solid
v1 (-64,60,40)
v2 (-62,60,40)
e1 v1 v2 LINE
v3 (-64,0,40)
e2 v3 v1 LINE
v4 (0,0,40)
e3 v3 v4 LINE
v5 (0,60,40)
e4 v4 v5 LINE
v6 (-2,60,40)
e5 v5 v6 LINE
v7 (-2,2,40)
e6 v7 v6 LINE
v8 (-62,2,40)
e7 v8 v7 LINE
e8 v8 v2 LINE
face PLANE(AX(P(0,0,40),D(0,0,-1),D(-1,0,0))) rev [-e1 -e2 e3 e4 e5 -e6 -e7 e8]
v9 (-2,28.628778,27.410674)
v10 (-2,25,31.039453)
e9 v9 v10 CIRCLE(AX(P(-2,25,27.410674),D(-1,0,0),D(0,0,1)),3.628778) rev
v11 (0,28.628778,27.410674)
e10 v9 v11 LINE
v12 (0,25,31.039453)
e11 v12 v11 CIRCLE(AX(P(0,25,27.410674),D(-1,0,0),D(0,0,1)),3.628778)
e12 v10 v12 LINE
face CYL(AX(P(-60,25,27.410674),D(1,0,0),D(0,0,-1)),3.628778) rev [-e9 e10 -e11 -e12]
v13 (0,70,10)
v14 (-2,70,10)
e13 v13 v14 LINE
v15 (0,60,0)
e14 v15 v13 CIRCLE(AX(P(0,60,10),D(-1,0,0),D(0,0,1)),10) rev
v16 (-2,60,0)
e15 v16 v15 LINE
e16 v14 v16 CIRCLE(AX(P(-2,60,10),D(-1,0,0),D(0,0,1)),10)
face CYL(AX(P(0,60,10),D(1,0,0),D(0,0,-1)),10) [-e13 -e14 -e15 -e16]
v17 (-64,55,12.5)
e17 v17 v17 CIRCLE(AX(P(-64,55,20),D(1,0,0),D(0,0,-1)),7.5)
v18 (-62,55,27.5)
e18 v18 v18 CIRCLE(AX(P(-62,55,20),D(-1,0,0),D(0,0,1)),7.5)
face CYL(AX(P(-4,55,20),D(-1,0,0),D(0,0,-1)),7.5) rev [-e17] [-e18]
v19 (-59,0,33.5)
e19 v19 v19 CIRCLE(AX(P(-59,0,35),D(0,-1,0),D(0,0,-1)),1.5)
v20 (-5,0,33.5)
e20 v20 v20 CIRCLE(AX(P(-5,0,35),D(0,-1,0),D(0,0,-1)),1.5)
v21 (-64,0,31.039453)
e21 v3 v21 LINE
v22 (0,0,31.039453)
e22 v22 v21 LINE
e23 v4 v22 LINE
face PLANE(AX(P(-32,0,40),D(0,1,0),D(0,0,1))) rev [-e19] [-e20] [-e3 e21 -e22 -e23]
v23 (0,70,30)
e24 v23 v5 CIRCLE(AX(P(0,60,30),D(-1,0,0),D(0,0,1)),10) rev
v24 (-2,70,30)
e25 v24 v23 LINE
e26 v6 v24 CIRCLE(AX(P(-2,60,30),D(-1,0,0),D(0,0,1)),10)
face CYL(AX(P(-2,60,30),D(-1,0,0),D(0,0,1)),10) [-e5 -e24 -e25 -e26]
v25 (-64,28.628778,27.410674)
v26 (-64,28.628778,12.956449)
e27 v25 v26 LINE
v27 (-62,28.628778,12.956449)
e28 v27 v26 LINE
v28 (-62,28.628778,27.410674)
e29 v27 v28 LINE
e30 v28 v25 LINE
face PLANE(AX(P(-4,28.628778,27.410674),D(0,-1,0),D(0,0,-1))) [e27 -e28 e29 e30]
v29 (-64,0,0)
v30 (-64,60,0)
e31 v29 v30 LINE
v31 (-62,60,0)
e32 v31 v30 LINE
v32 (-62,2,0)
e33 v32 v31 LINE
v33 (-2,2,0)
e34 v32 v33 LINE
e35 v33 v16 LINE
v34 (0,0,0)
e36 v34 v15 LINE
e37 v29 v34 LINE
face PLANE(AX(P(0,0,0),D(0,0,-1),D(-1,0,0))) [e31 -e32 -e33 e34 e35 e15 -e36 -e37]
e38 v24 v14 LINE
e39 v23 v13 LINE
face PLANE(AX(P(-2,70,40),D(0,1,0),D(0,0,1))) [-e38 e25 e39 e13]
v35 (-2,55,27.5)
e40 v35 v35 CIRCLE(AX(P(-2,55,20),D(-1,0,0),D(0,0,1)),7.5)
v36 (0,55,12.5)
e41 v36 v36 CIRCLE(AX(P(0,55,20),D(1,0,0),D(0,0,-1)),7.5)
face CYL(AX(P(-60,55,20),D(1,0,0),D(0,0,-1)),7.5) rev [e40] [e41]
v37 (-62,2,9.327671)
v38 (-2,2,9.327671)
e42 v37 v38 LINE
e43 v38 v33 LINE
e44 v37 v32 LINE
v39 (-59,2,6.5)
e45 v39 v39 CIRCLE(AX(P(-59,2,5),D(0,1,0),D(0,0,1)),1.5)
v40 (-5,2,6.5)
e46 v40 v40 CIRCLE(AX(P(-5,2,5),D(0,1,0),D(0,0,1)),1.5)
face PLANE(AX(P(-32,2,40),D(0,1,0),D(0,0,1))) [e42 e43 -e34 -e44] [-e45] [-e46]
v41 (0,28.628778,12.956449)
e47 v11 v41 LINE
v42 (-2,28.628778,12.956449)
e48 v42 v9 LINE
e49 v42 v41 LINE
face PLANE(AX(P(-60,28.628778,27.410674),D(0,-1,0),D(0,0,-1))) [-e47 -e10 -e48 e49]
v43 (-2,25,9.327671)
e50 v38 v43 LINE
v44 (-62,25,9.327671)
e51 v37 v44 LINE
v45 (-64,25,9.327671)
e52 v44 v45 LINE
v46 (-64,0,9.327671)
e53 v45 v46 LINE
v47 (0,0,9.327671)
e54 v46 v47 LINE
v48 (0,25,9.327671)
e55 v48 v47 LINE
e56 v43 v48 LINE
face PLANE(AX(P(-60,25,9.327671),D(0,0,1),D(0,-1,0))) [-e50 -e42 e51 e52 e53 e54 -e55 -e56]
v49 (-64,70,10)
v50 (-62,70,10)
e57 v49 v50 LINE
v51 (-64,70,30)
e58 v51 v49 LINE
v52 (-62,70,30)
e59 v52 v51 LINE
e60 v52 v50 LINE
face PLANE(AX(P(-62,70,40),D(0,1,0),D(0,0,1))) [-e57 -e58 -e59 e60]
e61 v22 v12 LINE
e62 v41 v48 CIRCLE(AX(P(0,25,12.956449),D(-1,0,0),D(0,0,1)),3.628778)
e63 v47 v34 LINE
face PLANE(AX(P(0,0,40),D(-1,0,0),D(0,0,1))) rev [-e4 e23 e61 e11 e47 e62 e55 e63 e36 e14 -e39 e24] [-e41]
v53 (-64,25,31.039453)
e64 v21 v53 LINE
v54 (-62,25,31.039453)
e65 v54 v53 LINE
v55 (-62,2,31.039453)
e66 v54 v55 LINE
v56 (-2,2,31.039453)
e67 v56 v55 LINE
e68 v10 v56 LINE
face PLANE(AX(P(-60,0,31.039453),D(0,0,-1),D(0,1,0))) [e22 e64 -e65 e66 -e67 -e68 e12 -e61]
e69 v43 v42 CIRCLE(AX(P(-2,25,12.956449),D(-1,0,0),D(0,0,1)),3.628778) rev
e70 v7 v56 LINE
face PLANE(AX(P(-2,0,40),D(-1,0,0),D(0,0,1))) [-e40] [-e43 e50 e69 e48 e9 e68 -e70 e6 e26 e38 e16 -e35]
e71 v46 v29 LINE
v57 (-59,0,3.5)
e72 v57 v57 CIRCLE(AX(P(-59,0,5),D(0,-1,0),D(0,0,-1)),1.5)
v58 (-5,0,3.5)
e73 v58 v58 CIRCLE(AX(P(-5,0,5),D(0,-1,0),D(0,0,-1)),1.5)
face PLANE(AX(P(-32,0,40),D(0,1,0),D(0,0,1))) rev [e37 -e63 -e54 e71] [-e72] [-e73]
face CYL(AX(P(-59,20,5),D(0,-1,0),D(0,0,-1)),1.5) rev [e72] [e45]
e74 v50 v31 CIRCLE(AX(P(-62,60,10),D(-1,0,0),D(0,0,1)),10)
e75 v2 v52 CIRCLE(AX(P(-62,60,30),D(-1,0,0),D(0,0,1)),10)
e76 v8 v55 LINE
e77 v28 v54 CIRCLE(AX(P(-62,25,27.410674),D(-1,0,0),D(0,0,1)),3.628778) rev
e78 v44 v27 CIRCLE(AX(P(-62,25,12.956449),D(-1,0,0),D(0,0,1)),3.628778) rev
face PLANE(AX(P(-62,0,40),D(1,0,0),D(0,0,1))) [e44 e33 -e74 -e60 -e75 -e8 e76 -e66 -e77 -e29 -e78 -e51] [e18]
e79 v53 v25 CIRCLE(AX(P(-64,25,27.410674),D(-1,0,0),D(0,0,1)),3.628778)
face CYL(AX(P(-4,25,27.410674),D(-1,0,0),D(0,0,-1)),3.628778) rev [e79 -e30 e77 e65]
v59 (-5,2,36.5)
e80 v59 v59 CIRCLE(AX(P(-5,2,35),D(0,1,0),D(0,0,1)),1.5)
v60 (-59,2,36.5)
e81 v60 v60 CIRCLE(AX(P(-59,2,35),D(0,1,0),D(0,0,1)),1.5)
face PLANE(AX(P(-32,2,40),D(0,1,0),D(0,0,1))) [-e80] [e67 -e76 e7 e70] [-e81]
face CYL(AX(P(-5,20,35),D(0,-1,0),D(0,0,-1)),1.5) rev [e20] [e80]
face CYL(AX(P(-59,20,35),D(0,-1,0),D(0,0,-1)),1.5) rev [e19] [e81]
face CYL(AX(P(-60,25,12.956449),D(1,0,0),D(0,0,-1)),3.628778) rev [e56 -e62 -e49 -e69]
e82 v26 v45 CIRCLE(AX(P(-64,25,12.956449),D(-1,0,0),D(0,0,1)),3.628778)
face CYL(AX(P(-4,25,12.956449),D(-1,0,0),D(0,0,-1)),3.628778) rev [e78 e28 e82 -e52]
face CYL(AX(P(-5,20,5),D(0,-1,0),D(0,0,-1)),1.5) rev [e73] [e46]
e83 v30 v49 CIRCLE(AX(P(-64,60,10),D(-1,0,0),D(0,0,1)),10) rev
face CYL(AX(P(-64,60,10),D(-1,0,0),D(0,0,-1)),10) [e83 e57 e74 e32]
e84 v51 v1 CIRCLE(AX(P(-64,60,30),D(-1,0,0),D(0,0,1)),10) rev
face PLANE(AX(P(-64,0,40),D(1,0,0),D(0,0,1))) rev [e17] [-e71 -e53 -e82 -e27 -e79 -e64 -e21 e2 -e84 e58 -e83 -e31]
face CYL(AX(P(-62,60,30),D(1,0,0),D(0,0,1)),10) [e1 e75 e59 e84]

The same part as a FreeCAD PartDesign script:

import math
import FreeCAD as App
import Part
import Sketcher


def edges_at(feature, points):
    """Names of the edges that pass closest to the given points."""
    edges = feature.Shape.Edges
    near = lambda p: min(range(len(edges)), key=lambda i: edges[i].distToShape(Part.Vertex(*p))[0])
    return sorted({f"Edge{near(p) + 1}" for p in points})

doc = App.newDocument("Part")
params = doc.addObject("Spreadsheet::Sheet", "Params")
for row, (alias, value) in enumerate([
    ("sketch1_width", "32 mm"),
    ("sketch1_width2", "2 mm"),
    ("sketch1_height", "70 mm"),
    ("pad1_length", "40 mm"),
    ("sketch2_radius", "7.5 mm"),
    ("sketch2_width", "25 mm"),
    ("pocket1_length", "60 mm"),
    ("fillet_radius", "10 mm"),
    ("sketch3_diameter", "3 mm"),
    ("pocket2_length", "20 mm"),
], start=1):
    params.set(f"A{row}", alias)
    params.set(f"B{row}", "=" + value)
    params.setAlias(f"B{row}", alias)

body = doc.addObject("PartDesign::Body", "Body")

# Sketch on XY plane
sketch1 = body.newObject("Sketcher::SketchObject", "Sketch")
sketch1.AttachmentSupport = (doc.getObject("XY_Plane"), [""])
sketch1.MapMode = "FlatFace"
sketch1.addGeometry([
    Part.LineSegment(App.Vector(-32, 0, 0), App.Vector(0, 0, 0)),  # 0
    Part.LineSegment(App.Vector(0, 0, 0), App.Vector(0, 70, 0)),  # 1
    Part.LineSegment(App.Vector(0, 70, 0), App.Vector(-2, 70, 0)),  # 2
    Part.LineSegment(App.Vector(-2, 70, 0), App.Vector(-2, 2, 0)),  # 3
    Part.LineSegment(App.Vector(-2, 2, 0), App.Vector(-32, 2, 0)),  # 4
    Part.LineSegment(App.Vector(-32, 2, 0), App.Vector(-32, 0, 0)),  # 5
], False)
sketch1.addConstraint([
    Sketcher.Constraint("Coincident", 0, 2, 1, 1),
    Sketcher.Constraint("Coincident", 1, 2, 2, 1),
    Sketcher.Constraint("Coincident", 2, 2, 3, 1),
    Sketcher.Constraint("Coincident", 3, 2, 4, 1),
    Sketcher.Constraint("Coincident", 4, 2, 5, 1),
    Sketcher.Constraint("Coincident", 5, 2, 0, 1),
    Sketcher.Constraint("Horizontal", 0),
    Sketcher.Constraint("Vertical", 1),
    Sketcher.Constraint("Horizontal", 2),
    Sketcher.Constraint("Vertical", 3),
    Sketcher.Constraint("Horizontal", 4),
    Sketcher.Constraint("Vertical", 5),
    Sketcher.Constraint("Coincident", 0, 2, -1, 1),
    Sketcher.Constraint("Equal", 2, 5),
    Sketcher.Constraint("DistanceX", 0, 1, 0, 2, 32.0),
    Sketcher.Constraint("DistanceX", 2, 2, 2, 1, 2.0),
    Sketcher.Constraint("DistanceY", 1, 1, 1, 2, 70.0),
])
sketch1.setExpression("Constraints[14]", "Params.sketch1_width")
sketch1.setExpression("Constraints[15]", "Params.sketch1_width2")
sketch1.setExpression("Constraints[16]", "Params.sketch1_height")
pad1 = body.newObject("PartDesign::Pad", "Pad")
pad1.Profile = sketch1
pad1.setExpression("Length", "Params.pad1_length")

# Sketch on YZ plane
sketch2 = body.newObject("Sketcher::SketchObject", "Sketch001")
sketch2.AttachmentSupport = (doc.getObject("YZ_Plane"), [""])
sketch2.MapMode = "FlatFace"
sketch2.addGeometry([
    Part.ArcOfCircle(Part.Circle(App.Vector(55, 20, 0), App.Vector(0, 0, 1), 7.5), math.radians(0), math.radians(180)),  # 0
    Part.ArcOfCircle(Part.Circle(App.Vector(55, 20, 0), App.Vector(0, 0, 1), 7.5), math.radians(180), math.radians(270)),  # 1
    Part.ArcOfCircle(Part.Circle(App.Vector(55, 20, 0), App.Vector(0, 0, 1), 7.5), math.radians(-90), math.radians(0)),  # 2
    Part.LineSegment(App.Vector(0, 9.3, 0), App.Vector(25, 9.3, 0)),  # 3
    Part.ArcOfCircle(Part.Circle(App.Vector(25, 13, 0), App.Vector(0, 0, 1), 3.6), math.radians(-90), math.radians(0)),  # 4
    Part.LineSegment(App.Vector(28.6, 13, 0), App.Vector(28.6, 27.4, 0)),  # 5
    Part.ArcOfCircle(Part.Circle(App.Vector(25, 27.4, 0), App.Vector(0, 0, 1), 3.6), math.radians(0), math.radians(90)),  # 6
    Part.LineSegment(App.Vector(25, 31, 0), App.Vector(0, 31, 0)),  # 7
    Part.LineSegment(App.Vector(0, 31, 0), App.Vector(0, 9.3, 0)),  # 8
], False)
sketch2.addConstraint([
    Sketcher.Constraint("Tangent", 0, 2, 1, 1),
    Sketcher.Constraint("Tangent", 1, 2, 2, 1),
    Sketcher.Constraint("Tangent", 2, 2, 0, 1),
    Sketcher.Constraint("Tangent", 3, 2, 4, 1),
    Sketcher.Constraint("Tangent", 4, 2, 5, 1),
    Sketcher.Constraint("Tangent", 5, 2, 6, 1),
    Sketcher.Constraint("Tangent", 6, 2, 7, 1),
    Sketcher.Constraint("Coincident", 7, 2, 8, 1),
    Sketcher.Constraint("Coincident", 8, 2, 3, 1),
    Sketcher.Constraint("Horizontal", 3),
    Sketcher.Constraint("Vertical", 5),
    Sketcher.Constraint("Horizontal", 7),
    Sketcher.Constraint("Vertical", 8),
    Sketcher.Constraint("Equal", 4, 6),
    Sketcher.Constraint("PointOnObject", 7, 2, -2),
    Sketcher.Constraint("Horizontal", 2, 3, 0, 2),
    Sketcher.Constraint("Horizontal", 0, 2, 2, 2),
    Sketcher.Constraint("Vertical", 2, 3, 1, 2),
    Sketcher.Constraint("Radius", 0, 7.5),
    Sketcher.Constraint("DistanceX", 3, 1, 3, 2, 25.0),
    Sketcher.Constraint("DistanceX", -1, 1, 0, 3, 55.0),
    Sketcher.Constraint("DistanceY", -1, 1, 0, 3, 20.0),
    Sketcher.Constraint("Radius", 4, 3.628778),
    Sketcher.Constraint("DistanceY", 8, 2, 8, 1, 21.711782),
    Sketcher.Constraint("DistanceY", -1, 1, 4, 3, 12.956449),
])
sketch2.setExpression("Constraints[18]", "Params.sketch2_radius")
sketch2.setExpression("Constraints[19]", "Params.sketch2_width")
pocket1 = body.newObject("PartDesign::Pocket", "Pocket")
pocket1.Profile = sketch2
pocket1.setExpression("Length", "Params.pocket1_length")
doc.recompute()

fillet = body.newObject("PartDesign::Fillet", "Fillet")
fillet.Base = (pocket1, edges_at(pocket1, [(-1, 70, 0), (-1, 70, 40)]))
fillet.setExpression("Radius", "Params.fillet_radius")
body2 = doc.addObject("PartDesign::Body", "Body001")
doc.recompute()

body2.BaseFeature = body
doc.recompute()

mirroring = doc.addObject("Part::Mirroring", "Mirroring")
mirroring.Source = body
mirroring.Base = App.Vector(-32, 0, 40)
mirroring.Normal = App.Vector(-1, 0, 0)
body3 = doc.addObject("PartDesign::Body", "Body002")
body3.BaseFeature = mirroring
boolean = body2.newObject("PartDesign::Boolean", "Boolean")
boolean.Type = "Fuse"
boolean.addObjects([body3])
doc.recompute()

# Sketch on XZ plane
sketch3 = body2.newObject("Sketcher::SketchObject", "Sketch002")
sketch3.AttachmentSupport = (doc.getObject("XZ_Plane001"), [""])
sketch3.MapMode = "FlatFace"
sketch3.addGeometry([
    Part.Circle(App.Vector(-59, 35, 0), App.Vector(0, 0, 1), 1.5),
    Part.Circle(App.Vector(-5, 35, 0), App.Vector(0, 0, 1), 1.5),
    Part.Circle(App.Vector(-5, 5, 0), App.Vector(0, 0, 1), 1.5),
    Part.Circle(App.Vector(-59, 5, 0), App.Vector(0, 0, 1), 1.5),
], False)
sketch3.addConstraint([
    Sketcher.Constraint("Equal", 0, 1),
    Sketcher.Constraint("Equal", 1, 2),
    Sketcher.Constraint("Equal", 2, 3),
    Sketcher.Constraint("Horizontal", 0, 3, 1, 3),
    Sketcher.Constraint("Horizontal", 2, 3, 3, 3),
    Sketcher.Constraint("Vertical", 1, 3, 2, 3),
    Sketcher.Constraint("Vertical", 0, 3, 3, 3),
    Sketcher.Constraint("Diameter", 0, 3.0),
    Sketcher.Constraint("DistanceX", 0, 3, -1, 1, 59.0),
    Sketcher.Constraint("DistanceY", -1, 1, 0, 3, 35.0),
    Sketcher.Constraint("DistanceX", 1, 3, -1, 1, 5.0),
    Sketcher.Constraint("DistanceY", -1, 1, 2, 3, 5.0),
])
sketch3.setExpression("Constraints[7]", "Params.sketch3_diameter")
pocket2 = body2.newObject("PartDesign::Pocket", "Pocket001")
pocket2.Profile = sketch3
pocket2.setExpression("Length", "Params.pocket2_length")
mirroring.Visibility = False

doc.recompute()
